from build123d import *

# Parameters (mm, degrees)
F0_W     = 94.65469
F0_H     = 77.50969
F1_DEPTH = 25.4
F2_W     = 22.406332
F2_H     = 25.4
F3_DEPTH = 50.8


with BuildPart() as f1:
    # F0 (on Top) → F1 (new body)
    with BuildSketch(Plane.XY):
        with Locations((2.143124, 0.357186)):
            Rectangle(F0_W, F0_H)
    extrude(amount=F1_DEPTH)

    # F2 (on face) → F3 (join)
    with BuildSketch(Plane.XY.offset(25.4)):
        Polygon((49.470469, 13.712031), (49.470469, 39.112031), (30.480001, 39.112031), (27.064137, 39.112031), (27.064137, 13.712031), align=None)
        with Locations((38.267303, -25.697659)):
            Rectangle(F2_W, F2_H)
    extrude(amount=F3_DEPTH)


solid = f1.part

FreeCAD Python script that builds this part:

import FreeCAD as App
import Part
import Sketcher
Q = App.Units.Quantity


def add_polygon(sketch, points):
    """Adds a closed chain of lines whose ends are joined by coincident constraints."""
    first, n = sketch.GeometryCount, len(points)
    for a, b in zip(points, points[1:] + points[:1]):
        sketch.addGeometry(Part.LineSegment(App.Vector(*a, 0), App.Vector(*b, 0)), False)
    for i in range(n):
        sketch.addConstraint(Sketcher.Constraint("Coincident", first + i, 2, first + (i + 1) % n, 1))

doc = App.newDocument("Part")
body = doc.addObject("PartDesign::Body", "Body")

sketch1 = doc.addObject("Sketcher::SketchObject", "Sketch")
body.addObject(sketch1)
sketch1.AttachmentSupport = (doc.XY_Plane, [""])
sketch1.MapMode = "FlatFace"
add_polygon(sketch1, [(-45.184221, 39.112031), (-45.184221, -38.397659), (49.470469, -38.397659), (49.470469, 39.112031)])
sketch1.addConstraint([
    Sketcher.Constraint("Vertical", 0),
    Sketcher.Constraint("Horizontal", 1),
    Sketcher.Constraint("Vertical", 2),
    Sketcher.Constraint("Horizontal", 3),
    Sketcher.Constraint("DistanceX", 1, 1, 1, 2, 94.65469),
    Sketcher.Constraint("DistanceY", 0, 2, 0, 1, 77.50969),
    Sketcher.Constraint("DistanceX", 0, 2, -1, 1, 45.184221),
    Sketcher.Constraint("DistanceY", 0, 2, -1, 1, 38.397659),
])
pad1 = doc.addObject("PartDesign::Pad", "Pad")
body.addObject(pad1)
pad1.Profile = sketch1
pad1.Length = Q("1 in")

sketch2 = doc.addObject("Sketcher::SketchObject", "Sketch001")
body.addObject(sketch2)
sketch2.AttachmentSupport = (doc.XY_Plane, [""])
sketch2.MapMode = "FlatFace"
sketch2.AttachmentOffset = App.Placement(App.Vector(0, 0, 1 * 25.4), App.Rotation())
add_polygon(sketch2, [(49.470469, 13.712031), (49.470469, 39.112031), (27.064137, 39.112031), (27.064137, 13.712031)])
add_polygon(sketch2, [(27.064137, -12.997659), (27.064137, -38.397659), (49.470469, -38.397659), (49.470469, -12.997659)])
sketch2.addConstraint([
    Sketcher.Constraint("Vertical", 0),
    Sketcher.Constraint("Horizontal", 1),
    Sketcher.Constraint("Vertical", 2),
    Sketcher.Constraint("Horizontal", 3),
    Sketcher.Constraint("Vertical", 4),
    Sketcher.Constraint("Horizontal", 5),
    Sketcher.Constraint("Vertical", 6),
    Sketcher.Constraint("Horizontal", 7),
    Sketcher.Constraint("Vertical", 2, 2, 4, 2),
    Sketcher.Constraint("Vertical", 3, 2, 5, 2),
    Sketcher.Constraint("Equal", 2, 4),
    Sketcher.Constraint("DistanceY", 0, 1, 0, 2, Q("1 in")),
    Sketcher.Constraint("DistanceX", 1, 2, 1, 1, 22.406332),
    Sketcher.Constraint("DistanceX", -1, 1, 0, 2, 49.470469),
    Sketcher.Constraint("DistanceY", -1, 1, 0, 2, 39.112031),
    Sketcher.Constraint("DistanceY", 4, 2, -1, 1, 38.397659),
])
pad2 = doc.addObject("PartDesign::Pad", "Pad001")
body.addObject(pad2)
pad2.Profile = sketch2
pad2.Length = Q("2 in")

doc.recompute()
